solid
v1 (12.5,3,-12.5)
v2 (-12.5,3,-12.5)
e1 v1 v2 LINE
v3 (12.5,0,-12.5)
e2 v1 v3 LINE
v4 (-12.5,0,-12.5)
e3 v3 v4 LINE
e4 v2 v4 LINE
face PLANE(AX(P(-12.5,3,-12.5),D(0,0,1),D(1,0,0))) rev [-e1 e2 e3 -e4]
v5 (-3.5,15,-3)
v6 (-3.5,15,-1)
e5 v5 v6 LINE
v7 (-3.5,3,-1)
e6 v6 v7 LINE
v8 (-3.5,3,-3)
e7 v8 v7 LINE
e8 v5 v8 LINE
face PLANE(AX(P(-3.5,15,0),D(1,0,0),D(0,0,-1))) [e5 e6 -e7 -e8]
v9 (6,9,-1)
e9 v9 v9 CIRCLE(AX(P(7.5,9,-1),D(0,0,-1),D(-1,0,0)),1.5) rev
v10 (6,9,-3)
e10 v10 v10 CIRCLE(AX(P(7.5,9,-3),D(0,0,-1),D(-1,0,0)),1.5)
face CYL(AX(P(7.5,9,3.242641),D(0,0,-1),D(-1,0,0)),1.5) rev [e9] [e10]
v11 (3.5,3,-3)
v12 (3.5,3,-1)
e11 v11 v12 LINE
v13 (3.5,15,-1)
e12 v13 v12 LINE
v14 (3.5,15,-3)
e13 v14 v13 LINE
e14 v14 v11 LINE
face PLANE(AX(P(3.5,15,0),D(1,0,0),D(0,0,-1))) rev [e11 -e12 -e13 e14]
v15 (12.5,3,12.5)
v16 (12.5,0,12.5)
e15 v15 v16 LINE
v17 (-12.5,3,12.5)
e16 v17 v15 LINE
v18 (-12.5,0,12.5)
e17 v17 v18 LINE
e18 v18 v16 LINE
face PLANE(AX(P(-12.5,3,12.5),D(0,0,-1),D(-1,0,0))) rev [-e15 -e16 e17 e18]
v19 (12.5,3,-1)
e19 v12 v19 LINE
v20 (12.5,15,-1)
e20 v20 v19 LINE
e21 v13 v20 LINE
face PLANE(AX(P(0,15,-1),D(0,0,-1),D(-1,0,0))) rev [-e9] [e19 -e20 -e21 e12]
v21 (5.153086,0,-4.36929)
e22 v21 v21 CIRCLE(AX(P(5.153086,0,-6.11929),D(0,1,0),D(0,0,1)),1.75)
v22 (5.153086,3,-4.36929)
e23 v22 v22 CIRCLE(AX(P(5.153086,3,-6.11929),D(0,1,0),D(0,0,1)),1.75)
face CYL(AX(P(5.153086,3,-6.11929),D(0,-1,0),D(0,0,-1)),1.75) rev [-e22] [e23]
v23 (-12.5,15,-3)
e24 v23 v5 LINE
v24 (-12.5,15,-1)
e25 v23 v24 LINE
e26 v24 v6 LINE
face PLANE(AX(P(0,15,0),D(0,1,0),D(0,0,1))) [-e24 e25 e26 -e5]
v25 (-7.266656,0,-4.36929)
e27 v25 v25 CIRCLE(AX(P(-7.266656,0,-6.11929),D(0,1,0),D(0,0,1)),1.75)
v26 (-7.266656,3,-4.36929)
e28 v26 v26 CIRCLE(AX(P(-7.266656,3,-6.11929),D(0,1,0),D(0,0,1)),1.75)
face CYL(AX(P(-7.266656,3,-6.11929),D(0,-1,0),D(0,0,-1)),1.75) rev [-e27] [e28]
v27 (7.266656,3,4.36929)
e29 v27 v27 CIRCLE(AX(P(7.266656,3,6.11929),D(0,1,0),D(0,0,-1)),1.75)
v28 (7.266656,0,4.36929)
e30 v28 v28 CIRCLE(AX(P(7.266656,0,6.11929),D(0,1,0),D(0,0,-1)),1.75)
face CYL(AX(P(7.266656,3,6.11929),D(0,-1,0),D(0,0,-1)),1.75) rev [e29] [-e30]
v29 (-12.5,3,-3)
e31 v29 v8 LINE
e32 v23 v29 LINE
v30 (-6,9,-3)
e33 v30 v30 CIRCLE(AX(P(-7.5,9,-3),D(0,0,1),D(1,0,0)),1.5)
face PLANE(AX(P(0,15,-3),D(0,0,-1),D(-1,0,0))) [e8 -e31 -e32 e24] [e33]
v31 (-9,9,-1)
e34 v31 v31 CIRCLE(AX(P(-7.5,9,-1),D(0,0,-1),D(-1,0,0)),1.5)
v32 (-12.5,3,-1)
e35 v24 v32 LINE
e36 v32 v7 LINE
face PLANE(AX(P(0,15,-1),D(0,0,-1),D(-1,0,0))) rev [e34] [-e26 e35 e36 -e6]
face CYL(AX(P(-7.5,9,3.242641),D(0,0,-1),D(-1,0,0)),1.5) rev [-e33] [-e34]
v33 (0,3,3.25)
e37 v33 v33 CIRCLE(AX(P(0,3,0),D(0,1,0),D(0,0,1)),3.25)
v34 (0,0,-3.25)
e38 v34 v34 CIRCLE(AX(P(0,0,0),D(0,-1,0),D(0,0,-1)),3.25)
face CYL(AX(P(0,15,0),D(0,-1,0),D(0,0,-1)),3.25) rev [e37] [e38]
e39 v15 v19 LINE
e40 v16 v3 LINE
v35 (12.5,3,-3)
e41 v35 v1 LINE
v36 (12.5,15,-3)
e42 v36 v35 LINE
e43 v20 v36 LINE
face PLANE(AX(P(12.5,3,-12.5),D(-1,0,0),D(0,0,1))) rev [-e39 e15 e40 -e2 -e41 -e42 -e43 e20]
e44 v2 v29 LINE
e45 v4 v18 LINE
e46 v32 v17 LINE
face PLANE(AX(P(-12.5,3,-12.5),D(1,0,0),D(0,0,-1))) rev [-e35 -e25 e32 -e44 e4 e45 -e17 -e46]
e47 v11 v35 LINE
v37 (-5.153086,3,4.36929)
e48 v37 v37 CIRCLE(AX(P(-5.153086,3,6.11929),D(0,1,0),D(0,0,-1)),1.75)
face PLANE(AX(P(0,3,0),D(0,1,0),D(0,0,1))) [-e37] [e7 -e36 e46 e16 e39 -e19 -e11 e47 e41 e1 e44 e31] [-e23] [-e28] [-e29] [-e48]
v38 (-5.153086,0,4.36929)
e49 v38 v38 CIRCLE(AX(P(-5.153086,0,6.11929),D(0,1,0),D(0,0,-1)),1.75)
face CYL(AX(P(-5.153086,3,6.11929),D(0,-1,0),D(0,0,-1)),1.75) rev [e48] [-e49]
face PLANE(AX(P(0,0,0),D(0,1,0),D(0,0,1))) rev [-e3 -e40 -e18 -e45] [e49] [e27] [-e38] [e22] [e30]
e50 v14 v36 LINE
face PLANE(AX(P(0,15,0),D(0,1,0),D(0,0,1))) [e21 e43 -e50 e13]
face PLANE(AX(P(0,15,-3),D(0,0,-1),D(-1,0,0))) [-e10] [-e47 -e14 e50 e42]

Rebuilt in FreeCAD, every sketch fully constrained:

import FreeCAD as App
import Part
import Sketcher

V = App.Vector

doc = App.newDocument("Part")
body = doc.addObject("PartDesign::Body", "Body")

# Sketch on XZ plane
sketch1 = body.newObject("Sketcher::SketchObject", "Sketch")
sketch1.AttachmentSupport = (doc.getObject("XZ_Plane"), [""])
sketch1.MapMode = "FlatFace"
sketch1.addGeometry([
    Part.LineSegment(V(-12.5, -12.5, 0), V(-12.5, 12.5, 0)),
    Part.LineSegment(V(-12.5, 12.5, 0), V(12.5, 12.5, 0)),
    Part.LineSegment(V(12.5, 12.5, 0), V(12.5, -12.5, 0)),
    Part.LineSegment(V(12.5, -12.5, 0), V(-12.5, -12.5, 0)),
], False)
sketch1.addConstraint([
    Sketcher.Constraint("Coincident", 0, 2, 1, 1),
    Sketcher.Constraint("Coincident", 1, 2, 2, 1),
    Sketcher.Constraint("Coincident", 2, 2, 3, 1),
    Sketcher.Constraint("Coincident", 3, 2, 0, 1),
    Sketcher.Constraint("Vertical", 0),
    Sketcher.Constraint("Horizontal", 1),
    Sketcher.Constraint("Vertical", 2),
    Sketcher.Constraint("Horizontal", 3),
    Sketcher.Constraint("Symmetric", 0, 2, 2, 2, -1, 1),
    Sketcher.Constraint("Equal", 3, 0),
    Sketcher.Constraint("DistanceX", 1, 1, 1, 2, 25.0),
])
pad1 = body.newObject("PartDesign::Pad", "Pad")
pad1.Profile = sketch1
pad1.Length = 3
pad1.Reversed = True

# Sketch on XZ plane
sketch2 = body.newObject("Sketcher::SketchObject", "Sketch001")
sketch2.AttachmentSupport = (doc.getObject("XZ_Plane"), [""])
sketch2.MapMode = "FlatFace"
sketch2.addGeometry([
    Part.Circle(V(-7.266656, -6.11929, 0), V(0, 0, 1), 1.75),
    Part.Circle(V(5.153086, -6.11929, 0), V(0, 0, 1), 1.75),
    Part.Circle(V(-5.153086, 6.11929, 0), V(0, 0, 1), 1.75),
    Part.Circle(V(7.266656, 6.11929, 0), V(0, 0, 1), 1.75),
], False)
sketch2.addConstraint([
    Sketcher.Constraint("Equal", 0, 1),
    Sketcher.Constraint("Equal", 1, 2),
    Sketcher.Constraint("Equal", 2, 3),
    Sketcher.Constraint("Symmetric", 1, 3, 2, 3, -1, 1),
    Sketcher.Constraint("Symmetric", 0, 3, 3, 3, -1, 1),
    Sketcher.Constraint("Horizontal", 0, 3, 1, 3),
    Sketcher.Constraint("Diameter", 0, 3.5),
    Sketcher.Constraint("DistanceY", 0, 3, -1, 1, 6.11929),
    Sketcher.Constraint("DistanceX", 0, 3, 2, 3, 2.11357),
    Sketcher.Constraint("DistanceX", 2, 3, 1, 3, 10.306172),
])
pocket1 = body.newObject("PartDesign::Pocket", "Pocket")
pocket1.Profile = sketch2
pocket1.Type = "ThroughAll"

# Sketch on XZ plane
sketch3 = body.newObject("Sketcher::SketchObject", "Sketch002")
sketch3.AttachmentSupport = (doc.getObject("XZ_Plane"), [""])
sketch3.MapMode = "FlatFace"
sketch3.AttachmentOffset = App.Placement(V(0, 0, -3), App.Rotation())
sketch3.addGeometry([
    Part.LineSegment(V(3.5, -3, 0), V(3.5, -1, 0)),  # 0
    Part.LineSegment(V(3.5, -1, 0), V(12.5, -1, 0)),  # 1
    Part.LineSegment(V(12.5, -1, 0), V(12.5, -3, 0)),  # 2
    Part.LineSegment(V(12.5, -3, 0), V(3.5, -3, 0)),  # 3
    Part.LineSegment(V(-12.5, -3, 0), V(-12.5, -1, 0)),  # 4
    Part.LineSegment(V(-12.5, -1, 0), V(-3.5, -1, 0)),  # 5
    Part.LineSegment(V(-3.5, -1, 0), V(-3.5, -3, 0)),  # 6
    Part.LineSegment(V(-3.5, -3, 0), V(-12.5, -3, 0)),  # 7
], False)
sketch3.addConstraint([
    Sketcher.Constraint("Coincident", 0, 2, 1, 1),
    Sketcher.Constraint("Coincident", 1, 2, 2, 1),
    Sketcher.Constraint("Coincident", 2, 2, 3, 1),
    Sketcher.Constraint("Coincident", 3, 2, 0, 1),
    Sketcher.Constraint("Coincident", 4, 2, 5, 1),
    Sketcher.Constraint("Coincident", 5, 2, 6, 1),
    Sketcher.Constraint("Coincident", 6, 2, 7, 1),
    Sketcher.Constraint("Coincident", 7, 2, 4, 1),
    Sketcher.Constraint("Vertical", 0),
    Sketcher.Constraint("Horizontal", 1),
    Sketcher.Constraint("Vertical", 2),
    Sketcher.Constraint("Horizontal", 3),
    Sketcher.Constraint("Vertical", 4),
    Sketcher.Constraint("Horizontal", 5),
    Sketcher.Constraint("Vertical", 6),
    Sketcher.Constraint("Horizontal", 7),
    Sketcher.Constraint("Symmetric", 1, 2, 4, 2, -2),
    Sketcher.Constraint("Symmetric", 3, 2, 6, 2, -2),
    Sketcher.Constraint("DistanceX", 1, 1, 1, 2, 9.0),
    Sketcher.Constraint("DistanceY", 0, 1, 0, 2, 2.0),
    Sketcher.Constraint("DistanceY", 0, 2, -1, 1, 1.0),
    Sketcher.Constraint("DistanceX", 4, 2, 0, 2, 16.0),
])
pad2 = body.newObject("PartDesign::Pad", "Pad001")
pad2.Profile = sketch3
pad2.Length = 12
pad2.Reversed = True

# Sketch on XZ plane
sketch4 = body.newObject("Sketcher::SketchObject", "Sketch003")
sketch4.AttachmentSupport = (doc.getObject("XZ_Plane"), [""])
sketch4.MapMode = "FlatFace"
sketch4.addGeometry(Part.Circle(V(0, 0, 0), V(0, 0, 1), 3.25), False)
sketch4.addConstraint([
    Sketcher.Constraint("Coincident", 0, 3, -1, 1),
    Sketcher.Constraint("Diameter", 0, 6.5),
])
pocket2 = body.newObject("PartDesign::Pocket", "Pocket001")
pocket2.Profile = sketch4
pocket2.Type = "ThroughAll"

# Sketch on XY plane
sketch5 = body.newObject("Sketcher::SketchObject", "Sketch004")
sketch5.AttachmentSupport = (doc.getObject("XY_Plane"), [""])
sketch5.MapMode = "FlatFace"
sketch5.AttachmentOffset = App.Placement(V(0, 0, -3), App.Rotation())
sketch5.addGeometry([
    Part.Circle(V(7.5, 9, 0), V(0, 0, 1), 1.5),
    Part.Circle(V(-7.5, 9, 0), V(0, 0, 1), 1.5),
], False)
sketch5.addConstraint([
    Sketcher.Constraint("Equal", 0, 1),
    Sketcher.Constraint("Symmetric", 0, 3, 1, 3, -2),
    Sketcher.Constraint("Diameter", 0, 3.0),
    Sketcher.Constraint("DistanceY", -1, 1, 0, 3, 9.0),
    Sketcher.Constraint("DistanceX", 1, 3, 0, 3, 15.0),
])
pocket3 = body.newObject("PartDesign::Pocket", "Pocket002")
pocket3.Profile = sketch5
pocket3.Length = 2
pocket3.Reversed = True

doc.recompute()
